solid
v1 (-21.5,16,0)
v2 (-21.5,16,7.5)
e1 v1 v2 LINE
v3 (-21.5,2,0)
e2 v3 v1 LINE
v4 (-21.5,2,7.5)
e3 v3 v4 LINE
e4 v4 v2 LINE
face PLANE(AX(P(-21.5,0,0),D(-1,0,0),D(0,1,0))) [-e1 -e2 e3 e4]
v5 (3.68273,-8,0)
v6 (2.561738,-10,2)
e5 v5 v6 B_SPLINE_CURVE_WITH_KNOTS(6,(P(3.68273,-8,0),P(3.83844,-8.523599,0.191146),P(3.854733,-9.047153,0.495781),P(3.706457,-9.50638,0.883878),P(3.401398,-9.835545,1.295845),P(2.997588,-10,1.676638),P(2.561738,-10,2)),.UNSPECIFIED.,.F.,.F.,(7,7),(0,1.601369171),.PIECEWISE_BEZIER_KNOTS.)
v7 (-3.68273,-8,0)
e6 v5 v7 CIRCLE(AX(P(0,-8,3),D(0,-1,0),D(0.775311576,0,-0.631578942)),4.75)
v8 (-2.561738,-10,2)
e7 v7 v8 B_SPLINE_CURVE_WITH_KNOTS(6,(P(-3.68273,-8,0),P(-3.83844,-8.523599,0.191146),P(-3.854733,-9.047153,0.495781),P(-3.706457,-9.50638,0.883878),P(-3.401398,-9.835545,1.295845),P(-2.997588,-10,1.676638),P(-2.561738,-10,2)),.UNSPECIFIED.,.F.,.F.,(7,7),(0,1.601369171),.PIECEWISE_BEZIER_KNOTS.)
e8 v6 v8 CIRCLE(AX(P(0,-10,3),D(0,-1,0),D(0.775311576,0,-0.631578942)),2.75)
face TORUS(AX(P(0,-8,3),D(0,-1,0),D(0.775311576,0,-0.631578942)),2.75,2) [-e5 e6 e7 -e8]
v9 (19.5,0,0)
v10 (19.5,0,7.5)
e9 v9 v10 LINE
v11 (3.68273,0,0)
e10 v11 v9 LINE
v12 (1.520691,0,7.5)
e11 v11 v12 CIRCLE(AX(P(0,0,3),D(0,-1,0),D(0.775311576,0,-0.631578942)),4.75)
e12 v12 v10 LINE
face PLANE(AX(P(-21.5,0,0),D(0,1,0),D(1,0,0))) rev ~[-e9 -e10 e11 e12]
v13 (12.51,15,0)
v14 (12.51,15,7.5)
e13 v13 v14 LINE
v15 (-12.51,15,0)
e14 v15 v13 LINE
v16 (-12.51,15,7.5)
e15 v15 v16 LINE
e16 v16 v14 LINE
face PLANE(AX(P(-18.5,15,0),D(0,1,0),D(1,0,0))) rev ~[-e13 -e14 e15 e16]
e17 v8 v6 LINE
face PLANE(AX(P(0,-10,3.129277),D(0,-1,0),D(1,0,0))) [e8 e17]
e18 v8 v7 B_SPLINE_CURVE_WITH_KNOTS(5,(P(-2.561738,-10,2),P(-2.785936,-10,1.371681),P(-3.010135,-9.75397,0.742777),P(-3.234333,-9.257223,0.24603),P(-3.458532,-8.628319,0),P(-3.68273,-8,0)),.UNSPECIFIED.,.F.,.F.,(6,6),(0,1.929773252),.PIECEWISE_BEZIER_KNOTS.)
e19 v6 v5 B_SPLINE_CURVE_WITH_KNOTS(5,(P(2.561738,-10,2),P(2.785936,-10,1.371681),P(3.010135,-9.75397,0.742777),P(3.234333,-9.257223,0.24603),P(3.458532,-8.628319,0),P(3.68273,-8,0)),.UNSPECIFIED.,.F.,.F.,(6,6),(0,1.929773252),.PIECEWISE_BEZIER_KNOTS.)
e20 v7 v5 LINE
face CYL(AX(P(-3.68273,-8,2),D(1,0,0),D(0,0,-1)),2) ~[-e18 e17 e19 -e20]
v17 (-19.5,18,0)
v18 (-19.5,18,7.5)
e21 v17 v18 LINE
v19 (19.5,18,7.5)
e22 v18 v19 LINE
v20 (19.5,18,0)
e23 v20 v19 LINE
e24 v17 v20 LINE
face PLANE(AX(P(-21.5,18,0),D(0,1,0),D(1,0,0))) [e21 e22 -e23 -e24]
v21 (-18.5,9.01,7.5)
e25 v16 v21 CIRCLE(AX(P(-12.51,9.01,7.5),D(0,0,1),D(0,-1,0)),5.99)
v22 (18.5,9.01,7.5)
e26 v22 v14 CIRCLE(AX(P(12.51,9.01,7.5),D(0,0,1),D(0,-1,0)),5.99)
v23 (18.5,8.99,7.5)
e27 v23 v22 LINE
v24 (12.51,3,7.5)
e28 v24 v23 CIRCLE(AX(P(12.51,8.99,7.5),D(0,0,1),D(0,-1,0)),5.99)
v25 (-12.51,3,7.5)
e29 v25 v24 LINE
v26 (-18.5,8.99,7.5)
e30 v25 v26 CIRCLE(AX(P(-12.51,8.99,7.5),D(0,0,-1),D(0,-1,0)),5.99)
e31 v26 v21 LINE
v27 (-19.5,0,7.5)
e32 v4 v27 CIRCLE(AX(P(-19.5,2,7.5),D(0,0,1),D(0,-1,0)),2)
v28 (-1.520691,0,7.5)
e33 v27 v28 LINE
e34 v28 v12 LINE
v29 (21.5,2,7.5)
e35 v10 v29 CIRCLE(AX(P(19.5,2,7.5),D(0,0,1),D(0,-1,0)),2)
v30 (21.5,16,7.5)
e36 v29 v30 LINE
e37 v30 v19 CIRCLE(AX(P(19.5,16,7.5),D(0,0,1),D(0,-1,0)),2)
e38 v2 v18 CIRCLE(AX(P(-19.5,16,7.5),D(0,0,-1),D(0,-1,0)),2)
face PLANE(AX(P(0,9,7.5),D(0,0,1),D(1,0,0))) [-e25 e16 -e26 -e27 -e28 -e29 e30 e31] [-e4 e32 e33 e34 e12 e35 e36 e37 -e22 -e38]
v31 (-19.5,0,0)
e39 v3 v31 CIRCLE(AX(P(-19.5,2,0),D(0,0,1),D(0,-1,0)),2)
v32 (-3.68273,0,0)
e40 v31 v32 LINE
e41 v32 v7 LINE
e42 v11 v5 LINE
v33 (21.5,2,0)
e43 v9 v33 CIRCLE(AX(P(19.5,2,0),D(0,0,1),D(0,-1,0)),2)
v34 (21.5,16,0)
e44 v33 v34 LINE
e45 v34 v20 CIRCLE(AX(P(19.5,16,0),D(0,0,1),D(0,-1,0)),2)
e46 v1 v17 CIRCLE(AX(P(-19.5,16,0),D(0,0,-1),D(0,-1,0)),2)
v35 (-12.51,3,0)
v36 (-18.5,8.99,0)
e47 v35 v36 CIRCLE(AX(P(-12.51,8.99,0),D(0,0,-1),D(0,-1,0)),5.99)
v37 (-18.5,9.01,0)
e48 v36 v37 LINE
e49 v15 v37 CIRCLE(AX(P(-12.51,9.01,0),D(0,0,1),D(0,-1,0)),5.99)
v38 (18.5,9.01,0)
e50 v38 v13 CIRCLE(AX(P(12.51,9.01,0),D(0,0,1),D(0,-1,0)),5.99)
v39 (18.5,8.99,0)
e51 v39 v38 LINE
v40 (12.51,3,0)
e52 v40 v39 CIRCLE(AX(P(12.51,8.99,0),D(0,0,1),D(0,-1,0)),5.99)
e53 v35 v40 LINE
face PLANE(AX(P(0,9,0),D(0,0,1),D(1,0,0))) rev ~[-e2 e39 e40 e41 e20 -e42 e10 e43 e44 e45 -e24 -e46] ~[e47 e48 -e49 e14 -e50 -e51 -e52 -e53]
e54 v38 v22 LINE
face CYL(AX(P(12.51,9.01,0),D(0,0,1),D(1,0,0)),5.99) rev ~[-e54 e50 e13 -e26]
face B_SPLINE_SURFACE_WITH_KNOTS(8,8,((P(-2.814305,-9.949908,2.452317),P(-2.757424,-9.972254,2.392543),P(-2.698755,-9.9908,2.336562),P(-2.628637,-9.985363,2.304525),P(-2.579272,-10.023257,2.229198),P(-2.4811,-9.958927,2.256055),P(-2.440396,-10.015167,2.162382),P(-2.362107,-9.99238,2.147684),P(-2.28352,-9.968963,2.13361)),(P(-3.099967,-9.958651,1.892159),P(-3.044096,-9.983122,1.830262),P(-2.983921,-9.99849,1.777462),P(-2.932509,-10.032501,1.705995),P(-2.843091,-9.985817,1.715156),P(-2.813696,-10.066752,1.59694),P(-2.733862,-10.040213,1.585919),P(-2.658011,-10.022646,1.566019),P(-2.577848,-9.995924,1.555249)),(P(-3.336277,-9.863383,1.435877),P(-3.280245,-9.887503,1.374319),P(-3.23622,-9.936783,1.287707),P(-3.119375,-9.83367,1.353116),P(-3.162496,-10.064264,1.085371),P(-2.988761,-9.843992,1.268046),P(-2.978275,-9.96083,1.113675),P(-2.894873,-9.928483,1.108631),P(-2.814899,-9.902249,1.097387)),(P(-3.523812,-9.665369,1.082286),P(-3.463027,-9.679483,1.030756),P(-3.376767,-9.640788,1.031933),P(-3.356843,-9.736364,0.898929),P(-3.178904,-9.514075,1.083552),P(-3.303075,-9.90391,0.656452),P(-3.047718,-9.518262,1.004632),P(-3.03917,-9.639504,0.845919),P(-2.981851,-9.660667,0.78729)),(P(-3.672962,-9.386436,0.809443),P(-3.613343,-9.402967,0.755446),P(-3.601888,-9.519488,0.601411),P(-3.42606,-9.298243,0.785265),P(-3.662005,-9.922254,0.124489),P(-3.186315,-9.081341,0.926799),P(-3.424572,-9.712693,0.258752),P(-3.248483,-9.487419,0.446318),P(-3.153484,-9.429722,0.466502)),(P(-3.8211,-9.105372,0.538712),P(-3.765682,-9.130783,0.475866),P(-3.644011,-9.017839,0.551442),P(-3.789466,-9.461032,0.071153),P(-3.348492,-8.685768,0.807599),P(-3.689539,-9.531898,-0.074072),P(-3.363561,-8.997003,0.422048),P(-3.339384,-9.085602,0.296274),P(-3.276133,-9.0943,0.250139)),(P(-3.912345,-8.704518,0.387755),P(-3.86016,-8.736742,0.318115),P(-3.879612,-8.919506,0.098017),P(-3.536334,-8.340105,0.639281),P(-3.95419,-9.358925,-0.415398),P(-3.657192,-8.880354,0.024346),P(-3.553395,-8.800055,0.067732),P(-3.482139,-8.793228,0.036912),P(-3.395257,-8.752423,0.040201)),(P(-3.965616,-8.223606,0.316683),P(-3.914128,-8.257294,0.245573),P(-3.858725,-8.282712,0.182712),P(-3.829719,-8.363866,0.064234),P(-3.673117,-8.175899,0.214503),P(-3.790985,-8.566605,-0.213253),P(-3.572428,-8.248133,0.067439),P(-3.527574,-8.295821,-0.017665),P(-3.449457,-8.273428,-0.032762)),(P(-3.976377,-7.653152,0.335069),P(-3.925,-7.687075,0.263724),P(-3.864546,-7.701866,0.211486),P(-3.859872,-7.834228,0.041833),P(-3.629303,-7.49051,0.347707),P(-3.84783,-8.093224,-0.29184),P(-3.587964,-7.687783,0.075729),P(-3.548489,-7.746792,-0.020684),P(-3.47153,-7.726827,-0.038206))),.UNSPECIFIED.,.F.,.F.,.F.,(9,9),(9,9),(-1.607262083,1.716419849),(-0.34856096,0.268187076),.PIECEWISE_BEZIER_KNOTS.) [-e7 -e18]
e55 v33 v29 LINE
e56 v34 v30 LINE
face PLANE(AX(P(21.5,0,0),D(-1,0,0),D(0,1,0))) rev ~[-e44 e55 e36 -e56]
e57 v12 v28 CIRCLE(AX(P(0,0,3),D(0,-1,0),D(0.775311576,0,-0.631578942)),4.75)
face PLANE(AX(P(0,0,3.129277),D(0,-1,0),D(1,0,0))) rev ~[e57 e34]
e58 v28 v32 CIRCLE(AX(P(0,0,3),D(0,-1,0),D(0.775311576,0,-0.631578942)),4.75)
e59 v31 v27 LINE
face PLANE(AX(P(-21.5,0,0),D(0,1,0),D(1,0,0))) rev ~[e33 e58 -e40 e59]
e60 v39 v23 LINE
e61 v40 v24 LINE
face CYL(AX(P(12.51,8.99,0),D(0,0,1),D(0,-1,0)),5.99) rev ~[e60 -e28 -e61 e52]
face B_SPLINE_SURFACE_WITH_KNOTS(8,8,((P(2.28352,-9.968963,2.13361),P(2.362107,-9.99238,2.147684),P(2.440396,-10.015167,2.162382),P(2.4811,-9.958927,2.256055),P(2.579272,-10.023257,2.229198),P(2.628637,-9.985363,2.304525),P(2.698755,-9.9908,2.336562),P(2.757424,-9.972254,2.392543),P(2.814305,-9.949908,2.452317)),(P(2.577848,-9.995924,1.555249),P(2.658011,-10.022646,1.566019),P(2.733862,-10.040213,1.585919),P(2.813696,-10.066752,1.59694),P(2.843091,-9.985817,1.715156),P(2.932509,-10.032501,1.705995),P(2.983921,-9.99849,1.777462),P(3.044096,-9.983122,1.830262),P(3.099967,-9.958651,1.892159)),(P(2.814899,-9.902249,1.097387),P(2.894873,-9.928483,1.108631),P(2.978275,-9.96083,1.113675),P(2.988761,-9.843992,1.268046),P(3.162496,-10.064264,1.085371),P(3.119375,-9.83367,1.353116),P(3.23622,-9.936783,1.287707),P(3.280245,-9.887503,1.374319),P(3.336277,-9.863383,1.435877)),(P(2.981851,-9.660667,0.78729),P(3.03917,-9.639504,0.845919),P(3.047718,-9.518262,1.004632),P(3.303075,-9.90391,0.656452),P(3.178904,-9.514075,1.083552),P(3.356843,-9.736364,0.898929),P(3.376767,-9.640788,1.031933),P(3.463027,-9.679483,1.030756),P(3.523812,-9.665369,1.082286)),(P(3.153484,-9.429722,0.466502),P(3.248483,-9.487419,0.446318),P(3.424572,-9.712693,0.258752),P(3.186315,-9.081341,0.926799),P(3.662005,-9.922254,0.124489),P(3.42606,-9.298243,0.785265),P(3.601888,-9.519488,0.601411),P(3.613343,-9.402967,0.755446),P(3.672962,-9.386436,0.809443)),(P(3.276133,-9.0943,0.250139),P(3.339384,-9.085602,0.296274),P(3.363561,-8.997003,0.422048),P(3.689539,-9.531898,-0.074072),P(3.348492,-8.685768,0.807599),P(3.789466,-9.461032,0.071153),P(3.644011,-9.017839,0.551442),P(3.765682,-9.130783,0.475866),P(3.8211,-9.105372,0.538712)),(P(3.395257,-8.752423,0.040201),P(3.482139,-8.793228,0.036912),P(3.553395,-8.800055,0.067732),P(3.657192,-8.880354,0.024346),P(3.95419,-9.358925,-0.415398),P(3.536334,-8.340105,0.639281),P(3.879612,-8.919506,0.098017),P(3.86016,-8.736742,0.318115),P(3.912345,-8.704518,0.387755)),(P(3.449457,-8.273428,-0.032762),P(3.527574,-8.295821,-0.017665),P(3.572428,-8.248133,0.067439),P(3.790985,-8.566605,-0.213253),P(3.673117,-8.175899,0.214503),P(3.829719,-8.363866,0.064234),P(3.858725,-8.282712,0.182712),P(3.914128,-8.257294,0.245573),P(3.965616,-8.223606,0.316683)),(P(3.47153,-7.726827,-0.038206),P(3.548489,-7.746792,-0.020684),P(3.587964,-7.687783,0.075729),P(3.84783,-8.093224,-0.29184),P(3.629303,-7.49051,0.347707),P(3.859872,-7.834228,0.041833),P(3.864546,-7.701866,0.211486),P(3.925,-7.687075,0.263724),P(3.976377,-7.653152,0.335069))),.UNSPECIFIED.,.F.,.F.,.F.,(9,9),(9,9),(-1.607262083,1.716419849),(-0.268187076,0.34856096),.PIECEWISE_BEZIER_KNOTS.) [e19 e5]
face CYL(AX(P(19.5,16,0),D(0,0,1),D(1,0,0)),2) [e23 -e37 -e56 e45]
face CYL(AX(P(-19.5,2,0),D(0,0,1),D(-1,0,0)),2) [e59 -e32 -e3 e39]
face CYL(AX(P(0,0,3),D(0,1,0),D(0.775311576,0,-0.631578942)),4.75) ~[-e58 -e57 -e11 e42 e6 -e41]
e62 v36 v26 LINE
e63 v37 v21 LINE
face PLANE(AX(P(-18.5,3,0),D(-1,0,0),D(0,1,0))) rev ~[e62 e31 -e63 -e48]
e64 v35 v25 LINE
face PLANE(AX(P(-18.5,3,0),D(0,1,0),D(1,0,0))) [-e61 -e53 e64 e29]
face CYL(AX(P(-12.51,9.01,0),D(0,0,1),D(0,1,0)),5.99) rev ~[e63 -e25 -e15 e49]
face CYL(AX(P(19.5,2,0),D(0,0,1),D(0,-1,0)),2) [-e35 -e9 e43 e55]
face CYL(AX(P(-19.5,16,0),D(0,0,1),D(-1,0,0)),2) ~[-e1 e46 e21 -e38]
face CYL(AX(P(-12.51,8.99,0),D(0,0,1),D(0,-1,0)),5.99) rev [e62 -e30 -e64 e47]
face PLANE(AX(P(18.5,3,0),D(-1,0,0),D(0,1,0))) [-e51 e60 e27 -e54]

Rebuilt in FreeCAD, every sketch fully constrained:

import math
import FreeCAD as App
import Part
import Sketcher
Q = App.Units.Quantity


def edges_at(feature, points):
    """Names of the edges that pass closest to the given points."""
    edges = feature.Shape.Edges
    near = lambda p: min(range(len(edges)), key=lambda i: edges[i].distToShape(Part.Vertex(*p))[0])
    return sorted({f"Edge{near(p) + 1}" for p in points})


def add_polygon(sketch, points):
    """Adds a closed chain of lines whose ends are joined by coincident constraints."""
    first, n = sketch.GeometryCount, len(points)
    for a, b in zip(points, points[1:] + points[:1]):
        sketch.addGeometry(Part.LineSegment(App.Vector(*a, 0), App.Vector(*b, 0)), False)
    for i in range(n):
        sketch.addConstraint(Sketcher.Constraint("Coincident", first + i, 2, first + (i + 1) % n, 1))

doc = App.newDocument("Part")
params = doc.addObject("Spreadsheet::Sheet", "Params")
for row, (alias, value) in enumerate([
    ("sketch1_radius", "4.75 mm"),
    ("pad1_length", "10 mm"),
    ("sketch2_width", "43 mm"),
    ("sketch2_width2", "37 mm"),
    ("sketch2_height", "18 mm"),
    ("sketch2_height2", "12 mm"),
    ("pad2_length", "7.5 mm"),
    ("fillet_radius", "5.99 mm"),
    ("fillet2_radius", "2 mm"),
    ("fillet3_radius", "2 mm"),
], start=1):
    params.set(f"A{row}", alias)
    params.set(f"B{row}", "=" + value)
    params.setAlias(f"B{row}", alias)

body = doc.addObject("PartDesign::Body", "Body")

sketch1 = body.newObject("Sketcher::SketchObject", "Sketch")
sketch1.AttachmentSupport = (doc.getObject("XZ_Plane"), [""])
sketch1.MapMode = "FlatFace"
sketch1.addGeometry([
    Part.ArcOfCircle(Part.Circle(App.Vector(0, 3, 0), App.Vector(0, 0, 1), 4.75), math.radians(-39.16671), math.radians(219.16671)),
    Part.LineSegment(App.Vector(-3.68273, 0, 0), App.Vector(3.68273, 0, 0)),
], False)
sketch1.addConstraint([
    Sketcher.Constraint("Coincident", 0, 1, 1, 2),
    Sketcher.Constraint("Coincident", 1, 1, 0, 2),
    Sketcher.Constraint("Horizontal", 1),
    Sketcher.Constraint("Symmetric", 0, 1, 1, 1, -1, 1),
    Sketcher.Constraint("Radius", 0, Q("4.75 mm")),
    Sketcher.Constraint("DistanceY", -1, 1, 0, 3, Q("3 mm")),
])
sketch1.setExpression("Constraints[4]", "Params.sketch1_radius")
pad1 = body.newObject("PartDesign::Pad", "Pad")
pad1.Profile = sketch1
pad1.setExpression("Length", "Params.pad1_length")

sketch2 = body.newObject("Sketcher::SketchObject", "Sketch001")
sketch2.AttachmentSupport = (doc.getObject("XY_Plane"), [""])
sketch2.MapMode = "FlatFace"
add_polygon(sketch2, [(-21.5, 18), (-21.5, 0), (21.5, 0), (21.5, 18)])
add_polygon(sketch2, [(18.5, 3), (-18.5, 3), (-18.5, 15), (18.5, 15)])
sketch2.addConstraint([
    Sketcher.Constraint("Vertical", 0),
    Sketcher.Constraint("Horizontal", 1),
    Sketcher.Constraint("Vertical", 2),
    Sketcher.Constraint("Horizontal", 3),
    Sketcher.Constraint("Horizontal", 4),
    Sketcher.Constraint("Vertical", 5),
    Sketcher.Constraint("Horizontal", 6),
    Sketcher.Constraint("Vertical", 7),
    Sketcher.Constraint("Symmetric", 0, 2, 1, 2, -1, 1),
    Sketcher.Constraint("DistanceX", 1, 1, 1, 2, Q("43 mm")),
    Sketcher.Constraint("DistanceX", 4, 2, 4, 1, Q("37 mm")),
    Sketcher.Constraint("DistanceY", 0, 2, 0, 1, Q("18 mm")),
    Sketcher.Constraint("DistanceY", 5, 1, 5, 2, Q("12 mm")),
    Sketcher.Constraint("DistanceY", -1, 1, 4, 2, Q("3 mm")),
    Sketcher.Constraint("DistanceX", 0, 2, 4, 2, Q("3 mm")),
])
sketch2.setExpression("Constraints[17]", "Params.sketch2_width")
sketch2.setExpression("Constraints[18]", "Params.sketch2_width2")
sketch2.setExpression("Constraints[19]", "Params.sketch2_height")
sketch2.setExpression("Constraints[20]", "Params.sketch2_height2")
pad2 = body.newObject("PartDesign::Pad", "Pad001")
pad2.Profile = sketch2
pad2.setExpression("Length", "Params.pad2_length")
doc.recompute()

fillet = body.newObject("PartDesign::Fillet", "Fillet")
fillet.Base = (pad2, edges_at(pad2, [
    (-18.5, 15, 3.75),
    (-18.5, 3, 3.75),
    (18.5, 3, 3.75),
    (18.5, 15, 3.75),
]))
fillet.setExpression("Radius", "Params.fillet_radius")
doc.recompute()

fillet2 = body.newObject("PartDesign::Fillet", "Fillet001")
fillet2.Base = (fillet, edges_at(fillet, [
    (-21.5, 0, 3.75),
    (-21.5, 18, 3.75),
    (21.5, 18, 3.75),
    (21.5, 0, 3.75),
]))
fillet2.setExpression("Radius", "Params.fillet2_radius")
doc.recompute()

fillet3 = body.newObject("PartDesign::Fillet", "Fillet002")
fillet3.Base = (fillet2, edges_at(fillet2, [(0, -10, 7.75), (0, -10, 0)]))
fillet3.setExpression("Radius", "Params.fillet3_radius")

doc.recompute()
